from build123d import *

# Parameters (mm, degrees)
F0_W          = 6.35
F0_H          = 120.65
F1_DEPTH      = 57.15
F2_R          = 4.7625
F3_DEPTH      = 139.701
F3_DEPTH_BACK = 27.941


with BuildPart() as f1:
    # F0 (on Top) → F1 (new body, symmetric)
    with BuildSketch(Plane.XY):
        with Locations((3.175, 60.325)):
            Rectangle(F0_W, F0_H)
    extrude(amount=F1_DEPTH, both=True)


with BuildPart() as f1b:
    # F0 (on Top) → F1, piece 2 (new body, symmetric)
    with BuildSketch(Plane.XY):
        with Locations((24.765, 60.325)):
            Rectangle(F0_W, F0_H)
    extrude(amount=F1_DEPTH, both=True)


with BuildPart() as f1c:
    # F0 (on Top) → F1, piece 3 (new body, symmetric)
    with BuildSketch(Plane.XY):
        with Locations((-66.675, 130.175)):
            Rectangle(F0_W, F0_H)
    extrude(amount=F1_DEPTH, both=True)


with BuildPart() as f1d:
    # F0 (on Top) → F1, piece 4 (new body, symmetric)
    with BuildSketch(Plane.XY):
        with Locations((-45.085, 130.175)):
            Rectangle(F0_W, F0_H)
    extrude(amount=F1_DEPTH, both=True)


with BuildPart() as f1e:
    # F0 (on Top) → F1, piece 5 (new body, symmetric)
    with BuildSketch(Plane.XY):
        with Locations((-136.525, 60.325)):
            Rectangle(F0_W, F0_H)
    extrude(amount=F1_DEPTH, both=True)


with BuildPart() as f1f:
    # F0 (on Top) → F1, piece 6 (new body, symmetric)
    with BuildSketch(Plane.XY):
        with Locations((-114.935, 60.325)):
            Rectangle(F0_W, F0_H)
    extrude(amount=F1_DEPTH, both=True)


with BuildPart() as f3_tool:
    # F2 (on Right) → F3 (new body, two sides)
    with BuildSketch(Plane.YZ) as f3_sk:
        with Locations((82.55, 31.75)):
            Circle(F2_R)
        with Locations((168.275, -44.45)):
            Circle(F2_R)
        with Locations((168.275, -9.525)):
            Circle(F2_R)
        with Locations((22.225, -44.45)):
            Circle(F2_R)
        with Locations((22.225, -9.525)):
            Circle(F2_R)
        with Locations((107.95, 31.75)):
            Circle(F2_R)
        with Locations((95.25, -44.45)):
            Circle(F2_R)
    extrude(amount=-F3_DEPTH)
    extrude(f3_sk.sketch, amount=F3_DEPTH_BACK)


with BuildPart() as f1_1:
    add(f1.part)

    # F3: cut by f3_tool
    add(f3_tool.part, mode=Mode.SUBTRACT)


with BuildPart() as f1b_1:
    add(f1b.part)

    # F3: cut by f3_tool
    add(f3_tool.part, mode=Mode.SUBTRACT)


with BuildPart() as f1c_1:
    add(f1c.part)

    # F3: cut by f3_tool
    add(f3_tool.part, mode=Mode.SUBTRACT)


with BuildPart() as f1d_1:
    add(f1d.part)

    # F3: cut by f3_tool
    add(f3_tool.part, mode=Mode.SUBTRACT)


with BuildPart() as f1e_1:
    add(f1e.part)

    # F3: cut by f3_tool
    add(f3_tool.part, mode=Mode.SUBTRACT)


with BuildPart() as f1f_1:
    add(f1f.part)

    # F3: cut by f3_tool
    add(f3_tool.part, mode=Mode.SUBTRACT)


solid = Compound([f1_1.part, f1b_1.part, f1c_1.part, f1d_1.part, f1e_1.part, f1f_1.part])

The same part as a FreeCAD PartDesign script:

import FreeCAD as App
import Part
import Sketcher
from FreeCAD import Vector
Q = App.Units.Quantity


def add_polygon(sketch, points):
    """Adds a closed chain of lines whose ends are joined by coincident constraints."""
    first, n = sketch.GeometryCount, len(points)
    for a, b in zip(points, points[1:] + points[:1]):
        sketch.addGeometry(Part.LineSegment(App.Vector(*a, 0), App.Vector(*b, 0)), False)
    for i in range(n):
        sketch.addConstraint(Sketcher.Constraint("Coincident", first + i, 2, first + (i + 1) % n, 1))

doc = App.newDocument("Part")
params = doc.addObject("Spreadsheet::Sheet", "Params")
for row, (alias, value) in enumerate([
    ("sketch1_width", "0.25 in"),
    ("sketch1_height", "4.75 in"),
    ("pad1_length", "4.5 in"),
    ("sketch2_width", "0.25 in"),
    ("sketch2_height", "4.75 in"),
    ("pad2_length", "4.5 in"),
    ("sketch3_width", "0.25 in"),
    ("sketch3_height", "4.75 in"),
    ("pad3_length", "4.5 in"),
    ("sketch4_width", "0.25 in"),
    ("sketch4_height", "4.75 in"),
    ("pad4_length", "4.5 in"),
    ("sketch5_width", "0.25 in"),
    ("sketch5_height", "4.75 in"),
    ("pad5_length", "4.5 in"),
    ("sketch6_width", "0.25 in"),
    ("sketch6_height", "4.75 in"),
    ("pad6_length", "4.5 in"),
    ("sketch7_diameter", "0.375 in"),
    ("pad7_length", "139.701 mm"),
    ("pad7_length2", "27.941 mm"),
], start=1):
    params.set(f"A{row}", alias)
    params.set(f"B{row}", "=" + value)
    params.setAlias(f"B{row}", alias)

body = doc.addObject("PartDesign::Body", "Body")

sketch1 = doc.addObject("Sketcher::SketchObject", "Sketch")
body.addObject(sketch1)
sketch1.AttachmentSupport = (doc.XY_Plane, [""])
sketch1.MapMode = "FlatFace"
add_polygon(sketch1, [(0, 120.65), (0, 0), (6.35, 0), (6.35, 120.65)])
sketch1.addConstraint([
    Sketcher.Constraint("Vertical", 0),
    Sketcher.Constraint("Horizontal", 1),
    Sketcher.Constraint("Vertical", 2),
    Sketcher.Constraint("Horizontal", 3),
    Sketcher.Constraint("Coincident", 0, 2, -1, 1),
    Sketcher.Constraint("DistanceX", 1, 1, 1, 2, Q("0.25 in")),
    Sketcher.Constraint("DistanceY", 0, 2, 0, 1, Q("4.75 in")),
])
sketch1.setExpression("Constraints[9]", "Params.sketch1_width")
sketch1.setExpression("Constraints[10]", "Params.sketch1_height")
pad1 = doc.addObject("PartDesign::Pad", "Pad")
body.addObject(pad1)
pad1.Profile = sketch1
pad1.setExpression("Length", "Params.pad1_length")
pad1.Midplane = True
body2 = doc.addObject("PartDesign::Body", "Body001")

sketch2 = doc.addObject("Sketcher::SketchObject", "Sketch001")
body2.addObject(sketch2)
sketch2.AttachmentSupport = (doc.getObject("XY_Plane001"), [""])
sketch2.MapMode = "FlatFace"
add_polygon(sketch2, [(21.59, 120.65), (21.59, 0), (27.94, 0), (27.94, 120.65)])
sketch2.addConstraint([
    Sketcher.Constraint("Vertical", 0),
    Sketcher.Constraint("Horizontal", 1),
    Sketcher.Constraint("Vertical", 2),
    Sketcher.Constraint("Horizontal", 3),
    Sketcher.Constraint("PointOnObject", 0, 2, -1),
    Sketcher.Constraint("DistanceX", 1, 1, 1, 2, Q("0.25 in")),
    Sketcher.Constraint("DistanceY", 0, 2, 0, 1, Q("4.75 in")),
    Sketcher.Constraint("DistanceX", -1, 1, 1, 2, Q("1.1 in")),
])
sketch2.setExpression("Constraints[9]", "Params.sketch2_width")
sketch2.setExpression("Constraints[10]", "Params.sketch2_height")
pad2 = doc.addObject("PartDesign::Pad", "Pad001")
body2.addObject(pad2)
pad2.Profile = sketch2
pad2.setExpression("Length", "Params.pad2_length")
pad2.Midplane = True
body3 = doc.addObject("PartDesign::Body", "Body002")

sketch3 = doc.addObject("Sketcher::SketchObject", "Sketch002")
body3.addObject(sketch3)
sketch3.AttachmentSupport = (doc.getObject("XY_Plane002"), [""])
sketch3.MapMode = "FlatFace"
add_polygon(sketch3, [(-69.85, 190.5), (-69.85, 69.85), (-63.5, 69.85), (-63.5, 190.5)])
sketch3.addConstraint([
    Sketcher.Constraint("Vertical", 0),
    Sketcher.Constraint("Horizontal", 1),
    Sketcher.Constraint("Vertical", 2),
    Sketcher.Constraint("Horizontal", 3),
    Sketcher.Constraint("DistanceX", 1, 1, 1, 2, Q("0.25 in")),
    Sketcher.Constraint("DistanceY", 0, 2, 0, 1, Q("4.75 in")),
    Sketcher.Constraint("DistanceX", 1, 2, -1, 1, Q("2.5 in")),
    Sketcher.Constraint("DistanceY", -1, 1, 2, 2, Q("7.5 in")),
])
sketch3.setExpression("Constraints[8]", "Params.sketch3_width")
sketch3.setExpression("Constraints[9]", "Params.sketch3_height")
pad3 = doc.addObject("PartDesign::Pad", "Pad002")
body3.addObject(pad3)
pad3.Profile = sketch3
pad3.setExpression("Length", "Params.pad3_length")
pad3.Midplane = True
body4 = doc.addObject("PartDesign::Body", "Body003")

sketch4 = doc.addObject("Sketcher::SketchObject", "Sketch003")
body4.addObject(sketch4)
sketch4.AttachmentSupport = (doc.getObject("XY_Plane003"), [""])
sketch4.MapMode = "FlatFace"
add_polygon(sketch4, [(-48.26, 190.5), (-48.26, 69.85), (-41.91, 69.85), (-41.91, 190.5)])
sketch4.addConstraint([
    Sketcher.Constraint("Vertical", 0),
    Sketcher.Constraint("Horizontal", 1),
    Sketcher.Constraint("Vertical", 2),
    Sketcher.Constraint("Horizontal", 3),
    Sketcher.Constraint("DistanceX", 1, 1, 1, 2, Q("0.25 in")),
    Sketcher.Constraint("DistanceY", 0, 2, 0, 1, Q("4.75 in")),
    Sketcher.Constraint("DistanceX", 0, 2, -1, 1, Q("1.9 in")),
    Sketcher.Constraint("DistanceY", -1, 1, 2, 2, Q("7.5 in")),
])
sketch4.setExpression("Constraints[8]", "Params.sketch4_width")
sketch4.setExpression("Constraints[9]", "Params.sketch4_height")
pad4 = doc.addObject("PartDesign::Pad", "Pad003")
body4.addObject(pad4)
pad4.Profile = sketch4
pad4.setExpression("Length", "Params.pad4_length")
pad4.Midplane = True
body5 = doc.addObject("PartDesign::Body", "Body004")

sketch5 = doc.addObject("Sketcher::SketchObject", "Sketch004")
body5.addObject(sketch5)
sketch5.AttachmentSupport = (doc.getObject("XY_Plane004"), [""])
sketch5.MapMode = "FlatFace"
add_polygon(sketch5, [(-139.7, 120.65), (-139.7, 0), (-133.35, 0), (-133.35, 120.65)])
sketch5.addConstraint([
    Sketcher.Constraint("Vertical", 0),
    Sketcher.Constraint("Horizontal", 1),
    Sketcher.Constraint("Vertical", 2),
    Sketcher.Constraint("Horizontal", 3),
    Sketcher.Constraint("PointOnObject", 0, 2, -1),
    Sketcher.Constraint("DistanceX", 1, 1, 1, 2, Q("0.25 in")),
    Sketcher.Constraint("DistanceY", 0, 2, 0, 1, Q("4.75 in")),
    Sketcher.Constraint("DistanceX", 0, 2, -1, 1, Q("5.5 in")),
])
sketch5.setExpression("Constraints[9]", "Params.sketch5_width")
sketch5.setExpression("Constraints[10]", "Params.sketch5_height")
pad5 = doc.addObject("PartDesign::Pad", "Pad004")
body5.addObject(pad5)
pad5.Profile = sketch5
pad5.setExpression("Length", "Params.pad5_length")
pad5.Midplane = True
body6 = doc.addObject("PartDesign::Body", "Body005")

sketch6 = doc.addObject("Sketcher::SketchObject", "Sketch005")
body6.addObject(sketch6)
sketch6.AttachmentSupport = (doc.getObject("XY_Plane005"), [""])
sketch6.MapMode = "FlatFace"
add_polygon(sketch6, [(-118.11, 120.65), (-118.11, 0), (-111.76, 0), (-111.76, 120.65)])
sketch6.addConstraint([
    Sketcher.Constraint("Vertical", 0),
    Sketcher.Constraint("Horizontal", 1),
    Sketcher.Constraint("Vertical", 2),
    Sketcher.Constraint("Horizontal", 3),
    Sketcher.Constraint("PointOnObject", 0, 2, -1),
    Sketcher.Constraint("DistanceX", 1, 1, 1, 2, Q("0.25 in")),
    Sketcher.Constraint("DistanceY", 0, 2, 0, 1, Q("4.75 in")),
    Sketcher.Constraint("DistanceX", 1, 2, -1, 1, Q("4.4 in")),
])
sketch6.setExpression("Constraints[9]", "Params.sketch6_width")
sketch6.setExpression("Constraints[10]", "Params.sketch6_height")
pad6 = doc.addObject("PartDesign::Pad", "Pad005")
body6.addObject(pad6)
pad6.Profile = sketch6
pad6.setExpression("Length", "Params.pad6_length")
pad6.Midplane = True
body7 = doc.addObject("PartDesign::Body", "Body006")
body7.AllowCompound = True

sketch7 = doc.addObject("Sketcher::SketchObject", "Sketch006")
body7.addObject(sketch7)
sketch7.AttachmentSupport = (doc.getObject("YZ_Plane006"), [""])
sketch7.MapMode = "FlatFace"
sketch7.addGeometry([
    Part.Circle(Vector(82.55, 31.75, 0), Vector(0, 0, 1), 4.7625),
    Part.Circle(Vector(168.275, -44.45, 0), Vector(0, 0, 1), 4.7625),
    Part.Circle(Vector(168.275, -9.525, 0), Vector(0, 0, 1), 4.7625),
    Part.Circle(Vector(22.225, -44.45, 0), Vector(0, 0, 1), 4.7625),
    Part.Circle(Vector(22.225, -9.525, 0), Vector(0, 0, 1), 4.7625),
    Part.Circle(Vector(107.95, 31.75, 0), Vector(0, 0, 1), 4.7625),
    Part.Circle(Vector(95.25, -44.45, 0), Vector(0, 0, 1), 4.7625),
], False)
sketch7.addConstraint([
    Sketcher.Constraint("Equal", 0, 1),
    Sketcher.Constraint("Equal", 1, 2),
    Sketcher.Constraint("Equal", 2, 3),
    Sketcher.Constraint("Equal", 3, 4),
    Sketcher.Constraint("Equal", 4, 5),
    Sketcher.Constraint("Equal", 5, 6),
    Sketcher.Constraint("Horizontal", 1, 3, 3, 3),
    Sketcher.Constraint("Horizontal", 2, 3, 4, 3),
    Sketcher.Constraint("Horizontal", 0, 3, 5, 3),
    Sketcher.Constraint("Horizontal", 3, 3, 6, 3),
    Sketcher.Constraint("Vertical", 1, 3, 2, 3),
    Sketcher.Constraint("Vertical", 3, 3, 4, 3),
    Sketcher.Constraint("Diameter", 0, Q("0.375 in")),
    Sketcher.Constraint("DistanceY", 1, 3, 0, 3, Q("3 in")),
    Sketcher.Constraint("DistanceX", 0, 3, 5, 3, Q("1 in")),
    Sketcher.Constraint("DistanceX", 0, 3, 6, 3, Q("0.5 in")),
    Sketcher.Constraint("DistanceX", -1, 1, 0, 3, Q("3.25 in")),
    Sketcher.Constraint("DistanceY", -1, 1, 0, 3, Q("1.25 in")),
    Sketcher.Constraint("DistanceX", 3, 3, 1, 3, Q("5.75 in")),
    Sketcher.Constraint("DistanceX", -1, 1, 1, 3, Q("6.625 in")),
    Sketcher.Constraint("DistanceY", 2, 3, -1, 1, Q("0.375 in")),
])
sketch7.setExpression("Constraints[12]", "Params.sketch7_diameter")
pad7 = doc.addObject("PartDesign::Pad", "Pad006")
body7.addObject(pad7)
pad7.Profile = sketch7
pad7.Type = "TwoLengths"
pad7.setExpression("Length", "Params.pad7_length")
pad7.setExpression("Length2", "Params.pad7_length2")
pad7.Reversed = True
doc.recompute()

body8 = doc.addObject("PartDesign::Body", "Body007")
body8.BaseFeature = body7
boolean = doc.addObject("PartDesign::Boolean", "Boolean")
body.addObject(boolean)
boolean.Type = "Cut"
boolean.addObjects([body8])
doc.recompute()

body9 = doc.addObject("PartDesign::Body", "Body008")
body9.BaseFeature = body7
boolean2 = doc.addObject("PartDesign::Boolean", "Boolean001")
body2.addObject(boolean2)
boolean2.Type = "Cut"
boolean2.addObjects([body9])
doc.recompute()

body10 = doc.addObject("PartDesign::Body", "Body009")
body10.BaseFeature = body7
boolean3 = doc.addObject("PartDesign::Boolean", "Boolean002")
body3.addObject(boolean3)
boolean3.Type = "Cut"
boolean3.addObjects([body10])
doc.recompute()

body11 = doc.addObject("PartDesign::Body", "Body010")
body11.BaseFeature = body7
boolean4 = doc.addObject("PartDesign::Boolean", "Boolean003")
body4.addObject(boolean4)
boolean4.Type = "Cut"
boolean4.addObjects([body11])
doc.recompute()

body12 = doc.addObject("PartDesign::Body", "Body011")
body12.BaseFeature = body7
boolean5 = doc.addObject("PartDesign::Boolean", "Boolean004")
body5.addObject(boolean5)
boolean5.Type = "Cut"
boolean5.addObjects([body12])
doc.recompute()

boolean6 = doc.addObject("PartDesign::Boolean", "Boolean005")
body6.addObject(boolean6)
boolean6.Type = "Cut"
boolean6.addObjects([body7])

doc.recompute()
